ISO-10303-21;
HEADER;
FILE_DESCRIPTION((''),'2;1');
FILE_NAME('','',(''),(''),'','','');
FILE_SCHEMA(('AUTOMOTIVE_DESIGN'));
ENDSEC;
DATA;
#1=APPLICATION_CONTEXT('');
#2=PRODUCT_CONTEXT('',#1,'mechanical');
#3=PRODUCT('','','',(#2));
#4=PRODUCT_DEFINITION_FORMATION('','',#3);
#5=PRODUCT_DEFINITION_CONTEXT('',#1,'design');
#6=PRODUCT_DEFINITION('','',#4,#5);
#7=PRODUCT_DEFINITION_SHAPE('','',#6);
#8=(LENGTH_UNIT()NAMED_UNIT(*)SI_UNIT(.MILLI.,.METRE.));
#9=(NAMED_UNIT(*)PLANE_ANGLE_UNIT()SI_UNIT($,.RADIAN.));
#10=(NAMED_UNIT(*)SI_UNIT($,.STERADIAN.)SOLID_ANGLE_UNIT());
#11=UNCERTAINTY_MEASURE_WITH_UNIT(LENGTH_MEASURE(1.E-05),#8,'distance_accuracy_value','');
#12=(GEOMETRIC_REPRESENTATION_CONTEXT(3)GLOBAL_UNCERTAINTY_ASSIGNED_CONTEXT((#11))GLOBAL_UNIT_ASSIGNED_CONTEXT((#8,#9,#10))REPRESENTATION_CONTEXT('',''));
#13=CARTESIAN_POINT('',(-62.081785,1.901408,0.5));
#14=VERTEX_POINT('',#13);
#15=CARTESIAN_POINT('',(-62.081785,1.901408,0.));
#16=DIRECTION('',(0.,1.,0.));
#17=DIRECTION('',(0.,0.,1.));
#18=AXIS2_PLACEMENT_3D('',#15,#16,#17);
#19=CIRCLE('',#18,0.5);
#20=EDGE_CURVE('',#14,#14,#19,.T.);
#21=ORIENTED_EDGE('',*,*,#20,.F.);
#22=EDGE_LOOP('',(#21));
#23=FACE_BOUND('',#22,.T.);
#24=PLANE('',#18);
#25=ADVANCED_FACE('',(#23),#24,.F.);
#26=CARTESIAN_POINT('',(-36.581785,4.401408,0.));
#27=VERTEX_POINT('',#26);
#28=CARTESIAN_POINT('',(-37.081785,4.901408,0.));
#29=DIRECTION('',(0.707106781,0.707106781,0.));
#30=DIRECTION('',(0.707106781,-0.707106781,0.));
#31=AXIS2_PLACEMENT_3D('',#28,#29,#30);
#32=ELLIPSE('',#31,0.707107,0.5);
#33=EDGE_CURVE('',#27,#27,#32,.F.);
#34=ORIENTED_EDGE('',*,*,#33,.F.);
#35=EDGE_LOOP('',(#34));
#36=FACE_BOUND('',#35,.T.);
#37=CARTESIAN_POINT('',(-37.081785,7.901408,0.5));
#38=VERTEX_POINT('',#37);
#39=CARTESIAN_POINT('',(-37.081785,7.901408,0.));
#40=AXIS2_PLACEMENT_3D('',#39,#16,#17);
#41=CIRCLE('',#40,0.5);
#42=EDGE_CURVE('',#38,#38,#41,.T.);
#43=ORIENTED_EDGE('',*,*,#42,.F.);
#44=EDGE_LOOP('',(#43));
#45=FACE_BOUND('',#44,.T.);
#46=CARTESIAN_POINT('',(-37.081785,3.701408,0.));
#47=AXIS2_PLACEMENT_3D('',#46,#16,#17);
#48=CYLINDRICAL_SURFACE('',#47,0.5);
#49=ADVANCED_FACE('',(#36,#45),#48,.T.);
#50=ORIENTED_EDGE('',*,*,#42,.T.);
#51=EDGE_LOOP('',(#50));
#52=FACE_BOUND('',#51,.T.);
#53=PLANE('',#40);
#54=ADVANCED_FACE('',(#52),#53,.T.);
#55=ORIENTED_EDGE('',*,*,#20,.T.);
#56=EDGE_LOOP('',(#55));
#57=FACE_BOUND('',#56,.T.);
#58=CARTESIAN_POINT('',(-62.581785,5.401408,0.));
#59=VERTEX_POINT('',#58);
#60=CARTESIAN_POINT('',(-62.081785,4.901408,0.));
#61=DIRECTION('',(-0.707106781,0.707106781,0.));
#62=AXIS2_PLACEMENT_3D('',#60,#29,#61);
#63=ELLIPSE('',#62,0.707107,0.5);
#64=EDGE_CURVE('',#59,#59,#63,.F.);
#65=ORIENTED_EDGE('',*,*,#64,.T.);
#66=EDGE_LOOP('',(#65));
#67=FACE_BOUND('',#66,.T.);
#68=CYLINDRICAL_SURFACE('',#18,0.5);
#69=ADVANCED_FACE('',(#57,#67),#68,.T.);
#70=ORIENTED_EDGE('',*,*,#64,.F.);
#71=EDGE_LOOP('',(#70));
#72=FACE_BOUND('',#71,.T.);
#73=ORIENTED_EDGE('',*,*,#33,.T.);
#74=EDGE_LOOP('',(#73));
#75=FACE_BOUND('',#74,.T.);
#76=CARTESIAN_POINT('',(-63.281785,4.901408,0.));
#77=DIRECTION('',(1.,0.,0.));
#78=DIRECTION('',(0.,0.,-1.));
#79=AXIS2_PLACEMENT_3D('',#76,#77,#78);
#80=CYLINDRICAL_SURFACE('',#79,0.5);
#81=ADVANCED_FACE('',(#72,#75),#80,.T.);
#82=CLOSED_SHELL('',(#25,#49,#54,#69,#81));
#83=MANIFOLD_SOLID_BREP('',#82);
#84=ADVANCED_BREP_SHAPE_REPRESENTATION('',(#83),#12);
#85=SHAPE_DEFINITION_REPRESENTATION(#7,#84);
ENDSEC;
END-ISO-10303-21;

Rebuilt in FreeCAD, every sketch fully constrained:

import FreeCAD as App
import Part
import Sketcher

V = App.Vector

doc = App.newDocument("Part")
params = doc.addObject("Spreadsheet::Sheet", "Params")
for row, (alias, value) in enumerate([
    ("sketch1_diameter", "1 mm"),
    ("sketch2_width", "25 mm"),
    ("sketch2_height", "3 mm"),
], start=1):
    params.set(f"A{row}", alias)
    params.set(f"B{row}", "=" + value)
    params.setAlias(f"B{row}", alias)

body = doc.addObject("PartDesign::Body", "Body")

# Sketch on XZ plane
sketch1 = body.newObject("Sketcher::SketchObject", "Sketch")
sketch1.AttachmentSupport = (doc.getObject("XZ_Plane"), [""])
sketch1.MapMode = "FlatFace"
sketch1.AttachmentOffset = App.Placement(V(0, 0, -7.901408), App.Rotation())
sketch1.addGeometry(Part.Circle(V(-37.1, 0, 0), V(0, 0, 1), 0.5), False)
sketch1.addConstraint(Sketcher.Constraint("PointOnObject", 0, 3, -1))
sketch1.addConstraint(Sketcher.Constraint("Diameter", 0, 1.0))
sketch1.addConstraint(Sketcher.Constraint("DistanceX", 0, 3, -1, 1, 37.081785))
sketch1.setExpression("Constraints[1]", "Params.sketch1_diameter")

# Sketch on XY plane
sketch2 = body.newObject("Sketcher::SketchObject", "Sketch001")
sketch2.AttachmentSupport = (doc.getObject("XY_Plane"), [""])
sketch2.MapMode = "FlatFace"
sketch2.addGeometry(Part.LineSegment(V(-62.1, 1.9, 0), V(-62.1, 4.9, 0)), False)
sketch2.addGeometry(Part.LineSegment(V(-62.1, 4.9, 0), V(-37.1, 4.9, 0)), False)
sketch2.addGeometry(Part.LineSegment(V(-37.1, 4.9, 0), V(-37.1, 7.9, 0)), False)
sketch2.addConstraint(Sketcher.Constraint("Coincident", 0, 2, 1, 1))
sketch2.addConstraint(Sketcher.Constraint("Coincident", 1, 2, 2, 1))
sketch2.addConstraint(Sketcher.Constraint("Vertical", 0))
sketch2.addConstraint(Sketcher.Constraint("Horizontal", 1))
sketch2.addConstraint(Sketcher.Constraint("Vertical", 2))
sketch2.addConstraint(Sketcher.Constraint("Equal", 0, 2))
sketch2.addConstraint(Sketcher.Constraint("DistanceX", 1, 1, 1, 2, 25.0))
sketch2.addConstraint(Sketcher.Constraint("DistanceY", 0, 1, 0, 2, 3.0))
sketch2.addConstraint(Sketcher.Constraint("DistanceY", -1, 1, 0, 1, 1.901408))
sketch2.addConstraint(Sketcher.Constraint("DistanceX", 0, 1, -1, 1, 62.081785))
sketch2.setExpression("Constraints[6]", "Params.sketch2_width")
sketch2.setExpression("Constraints[7]", "Params.sketch2_height")
doc.recompute()

additivepipe = body.newObject("PartDesign::AdditivePipe", "AdditivePipe")
additivepipe.Profile = sketch1
additivepipe.Spine = (sketch2, ["Edge1", "Edge2", "Edge3"])
additivepipe.Transition = "Right corner"

doc.recompute()
